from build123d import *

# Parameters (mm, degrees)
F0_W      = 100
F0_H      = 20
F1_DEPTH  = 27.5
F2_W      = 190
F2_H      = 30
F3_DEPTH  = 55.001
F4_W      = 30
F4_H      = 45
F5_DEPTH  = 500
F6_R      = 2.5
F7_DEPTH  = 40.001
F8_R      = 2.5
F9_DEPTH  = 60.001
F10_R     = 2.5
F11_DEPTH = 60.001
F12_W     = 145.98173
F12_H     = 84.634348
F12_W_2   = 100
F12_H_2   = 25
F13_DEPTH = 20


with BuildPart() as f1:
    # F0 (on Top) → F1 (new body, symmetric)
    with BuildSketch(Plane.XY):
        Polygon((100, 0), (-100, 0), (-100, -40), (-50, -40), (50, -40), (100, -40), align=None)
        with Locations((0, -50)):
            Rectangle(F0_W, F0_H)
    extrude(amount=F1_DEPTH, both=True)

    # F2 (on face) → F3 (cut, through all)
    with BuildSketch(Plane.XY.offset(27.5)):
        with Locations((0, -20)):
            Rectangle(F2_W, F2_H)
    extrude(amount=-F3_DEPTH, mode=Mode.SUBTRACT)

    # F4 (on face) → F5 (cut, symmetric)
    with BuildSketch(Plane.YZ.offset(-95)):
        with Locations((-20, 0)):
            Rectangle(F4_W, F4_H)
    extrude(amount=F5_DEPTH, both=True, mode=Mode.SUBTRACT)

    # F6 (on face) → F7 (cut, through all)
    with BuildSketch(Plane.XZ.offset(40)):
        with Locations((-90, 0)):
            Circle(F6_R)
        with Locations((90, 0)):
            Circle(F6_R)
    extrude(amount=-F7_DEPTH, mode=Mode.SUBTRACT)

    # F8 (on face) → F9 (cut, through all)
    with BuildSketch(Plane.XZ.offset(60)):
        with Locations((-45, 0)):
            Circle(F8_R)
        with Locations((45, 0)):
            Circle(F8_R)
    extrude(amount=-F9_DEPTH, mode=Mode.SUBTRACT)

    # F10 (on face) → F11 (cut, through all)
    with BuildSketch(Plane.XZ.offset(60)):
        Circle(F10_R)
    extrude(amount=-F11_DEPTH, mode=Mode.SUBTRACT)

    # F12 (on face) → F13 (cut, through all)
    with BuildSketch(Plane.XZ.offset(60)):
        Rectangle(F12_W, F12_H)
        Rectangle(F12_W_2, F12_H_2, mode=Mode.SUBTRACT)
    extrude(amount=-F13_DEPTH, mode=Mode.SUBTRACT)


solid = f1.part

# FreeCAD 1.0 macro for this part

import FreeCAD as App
import Part
import Sketcher

V = App.Vector


def add_polygon(sketch, points):
    """Adds a closed chain of lines whose ends are joined by coincident constraints."""
    first, n = sketch.GeometryCount, len(points)
    for a, b in zip(points, points[1:] + points[:1]):
        sketch.addGeometry(Part.LineSegment(App.Vector(*a, 0), App.Vector(*b, 0)), False)
    for i in range(n):
        sketch.addConstraint(Sketcher.Constraint("Coincident", first + i, 2, first + (i + 1) % n, 1))

doc = App.newDocument("Part")
body = doc.addObject("PartDesign::Body", "Body")

sketch1 = doc.addObject("Sketcher::SketchObject", "Sketch")
body.addObject(sketch1)
sketch1.AttachmentSupport = (doc.XY_Plane, [""])
sketch1.MapMode = "FlatFace"
add_polygon(sketch1, [(100, 0), (-100, 0), (-100, -40), (-50, -40), (-50, -60), (50, -60), (50, -40), (100, -40)])
sketch1.addConstraint([
    Sketcher.Constraint("Horizontal", 0),
    Sketcher.Constraint("Vertical", 1),
    Sketcher.Constraint("Horizontal", 2),
    Sketcher.Constraint("Vertical", 3),
    Sketcher.Constraint("Horizontal", 4),
    Sketcher.Constraint("Vertical", 5),
    Sketcher.Constraint("Horizontal", 6),
    Sketcher.Constraint("Vertical", 7),
    Sketcher.Constraint("Symmetric", 0, 2, 7, 2, -1, 1),
    Sketcher.Constraint("Symmetric", 2, 2, 5, 2, -2),
    Sketcher.Constraint("DistanceX", 0, 2, 0, 1, 200.0),
    Sketcher.Constraint("DistanceX", 2, 1, 2, 2, 50.0),
    Sketcher.Constraint("DistanceY", 1, 2, 1, 1, 40.0),
    Sketcher.Constraint("DistanceY", 3, 2, 3, 1, 20.0),
])
pad1 = doc.addObject("PartDesign::Pad", "Pad")
body.addObject(pad1)
pad1.Profile = sketch1
pad1.Length = 55
pad1.Midplane = True

sketch2 = doc.addObject("Sketcher::SketchObject", "Sketch001")
body.addObject(sketch2)
sketch2.AttachmentSupport = (doc.XY_Plane, [""])
sketch2.MapMode = "FlatFace"
sketch2.AttachmentOffset = App.Placement(V(0, 0, 27.5), App.Rotation())
add_polygon(sketch2, [(-95, -5), (-95, -35), (95, -35), (95, -5)])
sketch2.addConstraint([
    Sketcher.Constraint("Vertical", 0),
    Sketcher.Constraint("Horizontal", 1),
    Sketcher.Constraint("Vertical", 2),
    Sketcher.Constraint("Horizontal", 3),
    Sketcher.Constraint("DistanceX", 1, 1, 1, 2, 190.0),
    Sketcher.Constraint("DistanceY", 0, 2, 0, 1, 30.0),
    Sketcher.Constraint("DistanceX", 0, 2, -1, 1, 95.0),
    Sketcher.Constraint("DistanceY", 0, 2, -1, 1, 35.0),
])
pocket1 = doc.addObject("PartDesign::Pocket", "Pocket")
body.addObject(pocket1)
pocket1.Profile = sketch2
pocket1.Type = "ThroughAll"

sketch3 = doc.addObject("Sketcher::SketchObject", "Sketch002")
body.addObject(sketch3)
sketch3.AttachmentSupport = (doc.YZ_Plane, [""])
sketch3.MapMode = "FlatFace"
sketch3.AttachmentOffset = App.Placement(V(0, 0, -95), App.Rotation())
add_polygon(sketch3, [(-35, 22.5), (-35, -22.5), (-5, -22.5), (-5, 22.5)])
sketch3.addConstraint([
    Sketcher.Constraint("Vertical", 0),
    Sketcher.Constraint("Horizontal", 1),
    Sketcher.Constraint("Vertical", 2),
    Sketcher.Constraint("Horizontal", 3),
    Sketcher.Constraint("DistanceX", 1, 1, 1, 2, 30.0),
    Sketcher.Constraint("DistanceY", 0, 2, 0, 1, 45.0),
    Sketcher.Constraint("DistanceX", 0, 2, -1, 1, 35.0),
    Sketcher.Constraint("DistanceY", 0, 2, -1, 1, 22.5),
])
pocket2 = doc.addObject("PartDesign::Pocket", "Pocket001")
body.addObject(pocket2)
pocket2.Profile = sketch3
pocket2.Length = 1000
pocket2.Midplane = True

sketch4 = doc.addObject("Sketcher::SketchObject", "Sketch003")
body.addObject(sketch4)
sketch4.AttachmentSupport = (doc.XZ_Plane, [""])
sketch4.MapMode = "FlatFace"
sketch4.AttachmentOffset = App.Placement(V(0, 0, 40), App.Rotation())
sketch4.addGeometry([
    Part.Circle(V(-90, 0, 0), V(0, 0, 1), 2.5),
    Part.Circle(V(90, 0, 0), V(0, 0, 1), 2.5),
], False)
sketch4.addConstraint([
    Sketcher.Constraint("Equal", 0, 1),
    Sketcher.Constraint("Symmetric", 0, 3, 1, 3, -1, 1),
    Sketcher.Constraint("PointOnObject", 0, 3, -1),
    Sketcher.Constraint("Diameter", 0, 5.0),
    Sketcher.Constraint("DistanceX", 0, 3, -1, 1, 90.0),
])
pocket3 = doc.addObject("PartDesign::Pocket", "Pocket002")
body.addObject(pocket3)
pocket3.Profile = sketch4
pocket3.Type = "ThroughAll"

sketch5 = doc.addObject("Sketcher::SketchObject", "Sketch004")
body.addObject(sketch5)
sketch5.AttachmentSupport = (doc.XZ_Plane, [""])
sketch5.MapMode = "FlatFace"
sketch5.AttachmentOffset = App.Placement(V(0, 0, 60), App.Rotation())
sketch5.addGeometry([
    Part.Circle(V(-45, 0, 0), V(0, 0, 1), 2.5),
    Part.Circle(V(45, 0, 0), V(0, 0, 1), 2.5),
], False)
sketch5.addConstraint([
    Sketcher.Constraint("Equal", 0, 1),
    Sketcher.Constraint("Symmetric", 0, 3, 1, 3, -1, 1),
    Sketcher.Constraint("PointOnObject", 0, 3, -1),
    Sketcher.Constraint("Diameter", 0, 5.0),
    Sketcher.Constraint("DistanceX", 0, 3, -1, 1, 45.0),
])
pocket4 = doc.addObject("PartDesign::Pocket", "Pocket003")
body.addObject(pocket4)
pocket4.Profile = sketch5
pocket4.Type = "ThroughAll"

sketch6 = doc.addObject("Sketcher::SketchObject", "Sketch005")
body.addObject(sketch6)
sketch6.AttachmentSupport = (doc.XZ_Plane, [""])
sketch6.MapMode = "FlatFace"
sketch6.AttachmentOffset = App.Placement(V(0, 0, 60), App.Rotation())
sketch6.addGeometry(Part.Circle(V(0, 0, 0), V(0, 0, 1), 2.5), False)
sketch6.addConstraint([
    Sketcher.Constraint("Coincident", 0, 3, -1, 1),
    Sketcher.Constraint("Diameter", 0, 5.0),
])
pocket5 = doc.addObject("PartDesign::Pocket", "Pocket004")
body.addObject(pocket5)
pocket5.Profile = sketch6
pocket5.Type = "ThroughAll"

sketch7 = doc.addObject("Sketcher::SketchObject", "Sketch006")
body.addObject(sketch7)
sketch7.AttachmentSupport = (doc.XZ_Plane, [""])
sketch7.MapMode = "FlatFace"
sketch7.AttachmentOffset = App.Placement(V(0, 0, 60), App.Rotation())
add_polygon(sketch7, [(-72.990865, 42.317174), (-72.990865, -42.317174), (72.990865, -42.317174), (72.990865, 42.317174)])
add_polygon(sketch7, [(50, -12.5), (-50, -12.5), (-50, 12.5), (50, 12.5)])
sketch7.addConstraint([
    Sketcher.Constraint("Vertical", 0),
    Sketcher.Constraint("Horizontal", 1),
    Sketcher.Constraint("Vertical", 2),
    Sketcher.Constraint("Horizontal", 3),
    Sketcher.Constraint("Horizontal", 4),
    Sketcher.Constraint("Vertical", 5),
    Sketcher.Constraint("Horizontal", 6),
    Sketcher.Constraint("Vertical", 7),
    Sketcher.Constraint("Symmetric", 0, 2, 2, 2, -1, 1),
    Sketcher.Constraint("Symmetric", 4, 2, 6, 2, -1, 1),
    Sketcher.Constraint("DistanceX", 4, 2, 4, 1, 100.0),
    Sketcher.Constraint("DistanceY", 5, 1, 5, 2, 25.0),
    Sketcher.Constraint("DistanceX", 1, 1, 1, 2, 145.98173),
    Sketcher.Constraint("DistanceY", 0, 2, 0, 1, 84.634348),
])
pocket6 = doc.addObject("PartDesign::Pocket", "Pocket005")
body.addObject(pocket6)
pocket6.Profile = sketch7
pocket6.Length = 20

doc.recompute()
